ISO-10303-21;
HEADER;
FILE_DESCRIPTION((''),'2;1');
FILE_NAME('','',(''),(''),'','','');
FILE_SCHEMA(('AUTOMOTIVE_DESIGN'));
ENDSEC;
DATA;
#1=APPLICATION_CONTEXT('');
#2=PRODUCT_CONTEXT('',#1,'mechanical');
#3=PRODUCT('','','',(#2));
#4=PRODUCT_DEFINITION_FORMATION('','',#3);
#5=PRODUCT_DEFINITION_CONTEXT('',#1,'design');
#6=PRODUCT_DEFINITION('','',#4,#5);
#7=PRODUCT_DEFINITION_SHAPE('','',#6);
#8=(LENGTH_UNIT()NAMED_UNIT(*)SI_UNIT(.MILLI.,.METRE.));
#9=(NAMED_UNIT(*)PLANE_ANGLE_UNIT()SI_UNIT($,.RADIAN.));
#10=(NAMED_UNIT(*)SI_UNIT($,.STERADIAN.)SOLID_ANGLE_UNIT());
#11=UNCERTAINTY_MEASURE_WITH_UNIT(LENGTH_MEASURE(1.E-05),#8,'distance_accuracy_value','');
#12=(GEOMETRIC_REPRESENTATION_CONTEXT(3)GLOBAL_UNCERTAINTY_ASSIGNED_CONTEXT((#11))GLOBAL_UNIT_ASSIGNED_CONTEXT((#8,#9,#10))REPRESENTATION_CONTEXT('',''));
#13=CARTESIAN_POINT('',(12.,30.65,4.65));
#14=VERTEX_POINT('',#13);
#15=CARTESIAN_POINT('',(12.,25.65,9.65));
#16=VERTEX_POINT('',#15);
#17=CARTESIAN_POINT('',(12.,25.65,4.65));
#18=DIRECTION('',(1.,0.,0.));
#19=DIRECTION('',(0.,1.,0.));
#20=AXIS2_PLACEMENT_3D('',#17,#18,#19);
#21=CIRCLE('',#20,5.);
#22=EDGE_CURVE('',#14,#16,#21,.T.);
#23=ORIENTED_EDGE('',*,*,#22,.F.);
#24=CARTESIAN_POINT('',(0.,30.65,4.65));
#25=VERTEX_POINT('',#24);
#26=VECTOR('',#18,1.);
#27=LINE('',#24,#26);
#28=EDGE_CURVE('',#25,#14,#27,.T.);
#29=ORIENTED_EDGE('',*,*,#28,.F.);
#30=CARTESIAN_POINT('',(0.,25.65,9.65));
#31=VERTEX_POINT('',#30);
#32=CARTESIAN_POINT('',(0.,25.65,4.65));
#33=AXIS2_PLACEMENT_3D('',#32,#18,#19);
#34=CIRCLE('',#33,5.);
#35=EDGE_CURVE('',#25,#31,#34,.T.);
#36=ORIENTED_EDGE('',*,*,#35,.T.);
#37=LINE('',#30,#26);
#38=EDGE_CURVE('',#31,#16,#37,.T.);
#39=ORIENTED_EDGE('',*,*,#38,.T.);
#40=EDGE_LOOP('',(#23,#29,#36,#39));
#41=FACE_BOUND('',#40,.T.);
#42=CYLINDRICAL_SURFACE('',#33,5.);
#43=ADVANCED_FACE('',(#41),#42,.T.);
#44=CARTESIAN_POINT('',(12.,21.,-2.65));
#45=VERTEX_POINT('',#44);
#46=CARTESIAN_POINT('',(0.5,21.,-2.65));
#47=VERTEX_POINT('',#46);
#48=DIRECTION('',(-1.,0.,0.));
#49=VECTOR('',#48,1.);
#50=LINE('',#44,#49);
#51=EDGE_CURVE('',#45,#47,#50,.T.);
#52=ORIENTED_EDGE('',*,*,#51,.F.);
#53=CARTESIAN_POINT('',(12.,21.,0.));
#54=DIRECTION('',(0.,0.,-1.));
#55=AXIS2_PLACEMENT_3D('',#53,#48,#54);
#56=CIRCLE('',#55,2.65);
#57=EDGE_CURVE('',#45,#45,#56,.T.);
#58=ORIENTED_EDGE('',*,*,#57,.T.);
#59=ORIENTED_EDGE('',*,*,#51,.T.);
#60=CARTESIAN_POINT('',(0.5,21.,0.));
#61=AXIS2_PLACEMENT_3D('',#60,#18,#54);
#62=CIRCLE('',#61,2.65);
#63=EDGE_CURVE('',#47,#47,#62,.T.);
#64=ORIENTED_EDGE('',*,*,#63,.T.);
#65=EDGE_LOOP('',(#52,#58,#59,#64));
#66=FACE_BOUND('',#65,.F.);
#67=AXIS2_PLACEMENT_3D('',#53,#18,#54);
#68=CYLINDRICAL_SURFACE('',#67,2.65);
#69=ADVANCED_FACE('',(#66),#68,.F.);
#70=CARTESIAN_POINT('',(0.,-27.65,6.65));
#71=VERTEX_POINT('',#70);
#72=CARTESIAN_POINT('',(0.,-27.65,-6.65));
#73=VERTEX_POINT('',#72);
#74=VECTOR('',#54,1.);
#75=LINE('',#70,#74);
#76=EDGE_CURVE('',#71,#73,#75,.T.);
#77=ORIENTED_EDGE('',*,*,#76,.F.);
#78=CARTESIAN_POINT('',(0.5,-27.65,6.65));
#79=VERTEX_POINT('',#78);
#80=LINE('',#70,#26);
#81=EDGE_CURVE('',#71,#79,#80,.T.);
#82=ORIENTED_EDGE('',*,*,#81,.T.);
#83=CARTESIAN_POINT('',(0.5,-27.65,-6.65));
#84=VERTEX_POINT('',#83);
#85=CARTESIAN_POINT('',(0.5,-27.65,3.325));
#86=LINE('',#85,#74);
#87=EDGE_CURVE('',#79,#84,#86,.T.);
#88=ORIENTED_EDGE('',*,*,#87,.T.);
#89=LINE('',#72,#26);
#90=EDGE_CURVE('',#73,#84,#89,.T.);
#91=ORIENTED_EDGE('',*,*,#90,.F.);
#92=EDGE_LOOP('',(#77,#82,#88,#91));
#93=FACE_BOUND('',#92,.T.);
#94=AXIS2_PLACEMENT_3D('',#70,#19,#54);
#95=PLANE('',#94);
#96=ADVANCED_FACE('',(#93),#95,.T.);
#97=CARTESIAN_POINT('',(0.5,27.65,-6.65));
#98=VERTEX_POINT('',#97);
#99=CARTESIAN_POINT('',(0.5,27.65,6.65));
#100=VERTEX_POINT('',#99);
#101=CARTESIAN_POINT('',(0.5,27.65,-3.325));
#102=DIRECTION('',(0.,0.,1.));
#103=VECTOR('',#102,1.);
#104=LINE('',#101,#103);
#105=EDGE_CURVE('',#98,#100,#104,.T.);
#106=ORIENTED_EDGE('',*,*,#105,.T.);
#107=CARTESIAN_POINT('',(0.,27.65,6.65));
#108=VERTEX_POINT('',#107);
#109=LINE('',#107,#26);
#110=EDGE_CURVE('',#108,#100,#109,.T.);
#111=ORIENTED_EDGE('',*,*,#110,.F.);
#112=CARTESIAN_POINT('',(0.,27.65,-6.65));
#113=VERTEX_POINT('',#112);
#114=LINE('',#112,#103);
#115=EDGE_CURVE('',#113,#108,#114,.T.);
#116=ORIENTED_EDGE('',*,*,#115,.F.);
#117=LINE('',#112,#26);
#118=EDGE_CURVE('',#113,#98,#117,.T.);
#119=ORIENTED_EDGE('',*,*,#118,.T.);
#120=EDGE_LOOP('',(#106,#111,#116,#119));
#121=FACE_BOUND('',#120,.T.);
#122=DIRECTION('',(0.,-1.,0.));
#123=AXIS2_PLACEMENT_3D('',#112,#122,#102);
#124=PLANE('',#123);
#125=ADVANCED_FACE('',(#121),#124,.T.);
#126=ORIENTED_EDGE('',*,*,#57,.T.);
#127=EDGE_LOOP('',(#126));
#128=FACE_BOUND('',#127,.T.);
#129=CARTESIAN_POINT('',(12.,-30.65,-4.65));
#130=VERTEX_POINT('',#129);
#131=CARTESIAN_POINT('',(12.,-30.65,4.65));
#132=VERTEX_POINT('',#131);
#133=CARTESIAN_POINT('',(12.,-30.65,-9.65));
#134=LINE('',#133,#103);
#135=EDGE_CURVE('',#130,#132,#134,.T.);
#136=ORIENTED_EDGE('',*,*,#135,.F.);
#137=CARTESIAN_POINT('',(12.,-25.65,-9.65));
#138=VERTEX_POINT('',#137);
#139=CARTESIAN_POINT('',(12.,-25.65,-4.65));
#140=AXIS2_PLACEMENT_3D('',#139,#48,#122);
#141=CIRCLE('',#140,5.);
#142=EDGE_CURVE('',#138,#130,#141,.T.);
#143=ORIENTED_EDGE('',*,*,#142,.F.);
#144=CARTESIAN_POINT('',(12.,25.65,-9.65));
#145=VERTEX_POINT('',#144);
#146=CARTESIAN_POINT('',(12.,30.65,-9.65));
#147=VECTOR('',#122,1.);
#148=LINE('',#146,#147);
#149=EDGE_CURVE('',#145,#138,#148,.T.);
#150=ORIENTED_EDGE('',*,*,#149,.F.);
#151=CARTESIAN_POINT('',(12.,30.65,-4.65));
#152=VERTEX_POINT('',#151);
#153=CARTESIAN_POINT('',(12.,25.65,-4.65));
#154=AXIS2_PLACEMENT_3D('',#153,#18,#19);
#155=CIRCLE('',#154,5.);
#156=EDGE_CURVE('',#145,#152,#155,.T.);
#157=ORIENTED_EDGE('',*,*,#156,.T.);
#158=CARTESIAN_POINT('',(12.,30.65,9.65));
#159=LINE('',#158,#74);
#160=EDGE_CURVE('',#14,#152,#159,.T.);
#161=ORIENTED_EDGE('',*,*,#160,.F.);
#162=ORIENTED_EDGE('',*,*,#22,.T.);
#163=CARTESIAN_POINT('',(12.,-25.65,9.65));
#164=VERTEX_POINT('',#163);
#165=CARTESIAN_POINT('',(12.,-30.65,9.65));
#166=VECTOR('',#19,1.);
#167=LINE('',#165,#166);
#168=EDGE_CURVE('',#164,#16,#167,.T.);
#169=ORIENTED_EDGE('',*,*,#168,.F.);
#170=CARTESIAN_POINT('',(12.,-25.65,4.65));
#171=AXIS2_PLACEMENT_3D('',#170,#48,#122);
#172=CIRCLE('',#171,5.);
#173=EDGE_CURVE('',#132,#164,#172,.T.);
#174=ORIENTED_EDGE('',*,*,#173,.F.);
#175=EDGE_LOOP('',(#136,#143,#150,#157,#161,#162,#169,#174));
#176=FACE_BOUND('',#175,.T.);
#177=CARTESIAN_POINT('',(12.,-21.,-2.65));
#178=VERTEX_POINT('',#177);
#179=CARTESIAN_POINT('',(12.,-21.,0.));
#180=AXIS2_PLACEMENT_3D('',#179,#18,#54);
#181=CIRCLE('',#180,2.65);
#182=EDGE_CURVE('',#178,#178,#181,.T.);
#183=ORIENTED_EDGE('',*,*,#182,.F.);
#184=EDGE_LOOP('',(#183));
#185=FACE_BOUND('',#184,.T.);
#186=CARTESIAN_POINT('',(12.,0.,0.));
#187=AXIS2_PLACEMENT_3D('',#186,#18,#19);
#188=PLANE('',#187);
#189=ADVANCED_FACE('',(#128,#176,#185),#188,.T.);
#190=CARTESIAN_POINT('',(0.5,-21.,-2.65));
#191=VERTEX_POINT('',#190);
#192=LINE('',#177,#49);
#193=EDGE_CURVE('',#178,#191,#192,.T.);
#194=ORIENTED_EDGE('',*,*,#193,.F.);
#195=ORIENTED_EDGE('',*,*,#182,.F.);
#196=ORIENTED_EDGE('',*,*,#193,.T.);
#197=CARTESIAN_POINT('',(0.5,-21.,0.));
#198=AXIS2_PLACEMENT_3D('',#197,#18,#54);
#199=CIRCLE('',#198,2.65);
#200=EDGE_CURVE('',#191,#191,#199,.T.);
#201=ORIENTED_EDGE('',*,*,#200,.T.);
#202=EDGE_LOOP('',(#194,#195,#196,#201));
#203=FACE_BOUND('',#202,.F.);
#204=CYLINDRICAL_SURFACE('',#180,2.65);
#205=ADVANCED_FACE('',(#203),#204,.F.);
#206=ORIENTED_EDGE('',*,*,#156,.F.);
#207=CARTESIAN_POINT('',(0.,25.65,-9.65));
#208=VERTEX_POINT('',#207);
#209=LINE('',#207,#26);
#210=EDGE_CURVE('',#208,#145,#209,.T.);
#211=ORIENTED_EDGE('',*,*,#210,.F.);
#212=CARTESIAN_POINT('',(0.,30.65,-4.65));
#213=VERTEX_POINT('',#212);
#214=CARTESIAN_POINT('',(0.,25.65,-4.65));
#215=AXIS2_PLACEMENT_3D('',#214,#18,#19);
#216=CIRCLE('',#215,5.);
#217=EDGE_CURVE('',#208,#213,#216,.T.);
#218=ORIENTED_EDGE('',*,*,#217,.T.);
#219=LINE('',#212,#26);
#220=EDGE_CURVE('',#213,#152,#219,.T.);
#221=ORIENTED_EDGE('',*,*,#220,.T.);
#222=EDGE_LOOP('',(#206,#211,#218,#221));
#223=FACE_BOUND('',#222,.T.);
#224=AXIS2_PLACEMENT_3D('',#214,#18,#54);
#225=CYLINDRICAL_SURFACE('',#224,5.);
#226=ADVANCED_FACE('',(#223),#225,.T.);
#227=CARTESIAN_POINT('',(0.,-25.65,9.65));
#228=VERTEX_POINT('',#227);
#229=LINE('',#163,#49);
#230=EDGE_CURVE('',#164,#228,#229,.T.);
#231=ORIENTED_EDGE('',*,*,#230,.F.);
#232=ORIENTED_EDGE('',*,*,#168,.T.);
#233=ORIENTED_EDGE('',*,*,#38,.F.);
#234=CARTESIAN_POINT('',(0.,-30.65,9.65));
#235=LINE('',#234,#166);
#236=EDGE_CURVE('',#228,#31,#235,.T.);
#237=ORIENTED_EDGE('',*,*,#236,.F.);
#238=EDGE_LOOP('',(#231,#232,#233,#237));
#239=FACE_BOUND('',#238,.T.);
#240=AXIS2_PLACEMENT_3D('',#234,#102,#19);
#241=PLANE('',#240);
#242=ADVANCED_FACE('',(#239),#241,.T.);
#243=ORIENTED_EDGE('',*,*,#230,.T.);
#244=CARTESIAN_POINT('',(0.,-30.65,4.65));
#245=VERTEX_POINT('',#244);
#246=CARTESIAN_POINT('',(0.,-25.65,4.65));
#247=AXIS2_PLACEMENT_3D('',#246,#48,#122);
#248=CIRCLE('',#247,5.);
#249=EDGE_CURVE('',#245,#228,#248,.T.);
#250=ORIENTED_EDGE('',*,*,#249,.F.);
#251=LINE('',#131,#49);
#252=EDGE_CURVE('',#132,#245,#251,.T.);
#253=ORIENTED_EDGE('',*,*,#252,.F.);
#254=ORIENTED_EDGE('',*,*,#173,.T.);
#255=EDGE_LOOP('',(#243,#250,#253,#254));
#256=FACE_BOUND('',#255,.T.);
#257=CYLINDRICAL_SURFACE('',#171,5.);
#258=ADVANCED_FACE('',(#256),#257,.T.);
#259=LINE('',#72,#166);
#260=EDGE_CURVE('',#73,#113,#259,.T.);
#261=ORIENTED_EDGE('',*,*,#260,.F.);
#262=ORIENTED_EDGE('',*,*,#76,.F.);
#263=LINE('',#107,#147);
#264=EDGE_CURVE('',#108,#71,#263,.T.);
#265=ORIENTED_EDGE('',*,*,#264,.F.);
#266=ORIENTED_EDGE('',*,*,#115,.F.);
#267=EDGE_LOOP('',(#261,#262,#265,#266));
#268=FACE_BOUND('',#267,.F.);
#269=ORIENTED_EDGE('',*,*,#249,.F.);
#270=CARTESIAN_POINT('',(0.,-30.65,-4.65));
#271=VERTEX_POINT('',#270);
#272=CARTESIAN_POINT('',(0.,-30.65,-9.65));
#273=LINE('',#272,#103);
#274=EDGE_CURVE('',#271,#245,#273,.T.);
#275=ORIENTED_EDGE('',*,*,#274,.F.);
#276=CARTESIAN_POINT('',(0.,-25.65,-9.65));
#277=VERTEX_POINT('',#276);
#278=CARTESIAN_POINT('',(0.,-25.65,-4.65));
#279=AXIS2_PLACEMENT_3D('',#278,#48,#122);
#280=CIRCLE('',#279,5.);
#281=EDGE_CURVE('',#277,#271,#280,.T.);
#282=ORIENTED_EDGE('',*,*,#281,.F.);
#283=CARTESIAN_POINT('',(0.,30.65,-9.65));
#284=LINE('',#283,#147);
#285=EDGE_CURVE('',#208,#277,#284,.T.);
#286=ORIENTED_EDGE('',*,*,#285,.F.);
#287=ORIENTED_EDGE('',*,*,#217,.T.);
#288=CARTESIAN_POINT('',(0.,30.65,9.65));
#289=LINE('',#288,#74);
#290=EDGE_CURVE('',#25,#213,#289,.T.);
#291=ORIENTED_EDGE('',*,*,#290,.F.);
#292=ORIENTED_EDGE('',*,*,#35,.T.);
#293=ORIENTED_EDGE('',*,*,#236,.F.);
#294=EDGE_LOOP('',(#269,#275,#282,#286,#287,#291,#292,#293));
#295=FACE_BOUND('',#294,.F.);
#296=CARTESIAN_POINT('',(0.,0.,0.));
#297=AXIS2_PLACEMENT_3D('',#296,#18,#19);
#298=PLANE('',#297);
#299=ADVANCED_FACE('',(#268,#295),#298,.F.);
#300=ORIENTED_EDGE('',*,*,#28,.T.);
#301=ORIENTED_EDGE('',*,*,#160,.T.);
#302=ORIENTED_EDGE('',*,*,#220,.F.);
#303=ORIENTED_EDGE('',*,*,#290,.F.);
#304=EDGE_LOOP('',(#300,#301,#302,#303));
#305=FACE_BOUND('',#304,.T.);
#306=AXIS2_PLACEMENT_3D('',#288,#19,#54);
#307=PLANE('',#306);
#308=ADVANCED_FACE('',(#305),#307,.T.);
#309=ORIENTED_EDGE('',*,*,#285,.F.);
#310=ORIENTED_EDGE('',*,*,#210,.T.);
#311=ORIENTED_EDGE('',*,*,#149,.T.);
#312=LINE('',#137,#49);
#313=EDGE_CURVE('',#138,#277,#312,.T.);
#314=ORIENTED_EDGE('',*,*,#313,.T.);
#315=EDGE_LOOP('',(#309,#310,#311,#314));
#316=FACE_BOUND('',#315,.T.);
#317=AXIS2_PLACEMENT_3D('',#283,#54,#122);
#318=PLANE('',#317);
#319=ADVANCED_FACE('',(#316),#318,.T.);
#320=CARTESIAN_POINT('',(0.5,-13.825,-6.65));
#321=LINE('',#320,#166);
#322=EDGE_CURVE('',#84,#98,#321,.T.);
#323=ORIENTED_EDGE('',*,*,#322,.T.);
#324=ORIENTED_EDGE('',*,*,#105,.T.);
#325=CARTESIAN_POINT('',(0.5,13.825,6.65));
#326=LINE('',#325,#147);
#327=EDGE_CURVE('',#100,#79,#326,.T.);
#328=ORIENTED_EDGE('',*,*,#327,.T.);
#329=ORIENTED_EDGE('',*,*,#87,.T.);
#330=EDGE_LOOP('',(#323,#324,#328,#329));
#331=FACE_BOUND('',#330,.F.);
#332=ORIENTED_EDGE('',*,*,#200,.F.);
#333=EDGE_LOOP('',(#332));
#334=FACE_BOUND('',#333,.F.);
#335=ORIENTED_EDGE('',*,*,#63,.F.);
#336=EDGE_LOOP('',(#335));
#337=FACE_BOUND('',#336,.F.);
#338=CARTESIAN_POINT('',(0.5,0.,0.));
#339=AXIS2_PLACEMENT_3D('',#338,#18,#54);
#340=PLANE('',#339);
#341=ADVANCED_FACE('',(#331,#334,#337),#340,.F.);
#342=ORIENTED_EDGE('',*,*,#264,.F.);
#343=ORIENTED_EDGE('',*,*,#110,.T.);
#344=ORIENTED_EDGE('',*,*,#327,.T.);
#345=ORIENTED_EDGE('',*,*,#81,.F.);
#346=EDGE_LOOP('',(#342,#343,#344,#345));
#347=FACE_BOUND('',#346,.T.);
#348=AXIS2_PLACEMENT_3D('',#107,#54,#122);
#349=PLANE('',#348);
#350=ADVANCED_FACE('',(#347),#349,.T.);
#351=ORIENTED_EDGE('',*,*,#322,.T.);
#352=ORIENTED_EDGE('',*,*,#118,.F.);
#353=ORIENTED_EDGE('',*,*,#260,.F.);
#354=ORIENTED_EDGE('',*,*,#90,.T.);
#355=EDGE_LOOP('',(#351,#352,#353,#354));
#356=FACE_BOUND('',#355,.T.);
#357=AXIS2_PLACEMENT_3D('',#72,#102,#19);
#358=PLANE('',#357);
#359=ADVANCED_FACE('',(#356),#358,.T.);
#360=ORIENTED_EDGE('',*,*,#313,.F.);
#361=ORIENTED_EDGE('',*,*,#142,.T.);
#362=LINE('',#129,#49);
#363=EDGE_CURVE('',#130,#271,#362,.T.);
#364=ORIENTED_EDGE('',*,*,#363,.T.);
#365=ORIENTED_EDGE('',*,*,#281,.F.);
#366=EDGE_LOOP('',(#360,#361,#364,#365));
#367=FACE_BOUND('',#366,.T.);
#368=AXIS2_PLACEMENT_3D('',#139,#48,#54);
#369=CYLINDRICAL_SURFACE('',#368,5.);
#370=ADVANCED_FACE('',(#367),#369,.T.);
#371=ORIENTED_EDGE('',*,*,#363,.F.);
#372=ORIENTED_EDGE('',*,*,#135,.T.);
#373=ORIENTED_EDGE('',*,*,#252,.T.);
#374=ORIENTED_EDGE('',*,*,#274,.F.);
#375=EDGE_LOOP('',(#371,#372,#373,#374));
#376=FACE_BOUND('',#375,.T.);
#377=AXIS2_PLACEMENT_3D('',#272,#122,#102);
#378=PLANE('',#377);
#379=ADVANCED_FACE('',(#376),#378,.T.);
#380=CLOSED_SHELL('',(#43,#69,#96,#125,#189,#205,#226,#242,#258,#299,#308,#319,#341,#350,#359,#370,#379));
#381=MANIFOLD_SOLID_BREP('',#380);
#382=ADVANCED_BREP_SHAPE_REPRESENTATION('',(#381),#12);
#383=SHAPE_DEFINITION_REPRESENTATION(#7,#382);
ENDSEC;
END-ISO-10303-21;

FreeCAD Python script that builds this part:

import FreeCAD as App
import Part
import Sketcher
Q = App.Units.Quantity


def edges_at(feature, points):
    """Names of the edges that pass closest to the given points."""
    edges = feature.Shape.Edges
    near = lambda p: min(range(len(edges)), key=lambda i: edges[i].distToShape(Part.Vertex(*p))[0])
    return sorted({f"Edge{near(p) + 1}" for p in points})


def add_polygon(sketch, points):
    """Adds a closed chain of lines whose ends are joined by coincident constraints."""
    first, n = sketch.GeometryCount, len(points)
    for a, b in zip(points, points[1:] + points[:1]):
        sketch.addGeometry(Part.LineSegment(App.Vector(*a, 0), App.Vector(*b, 0)), False)
    for i in range(n):
        sketch.addConstraint(Sketcher.Constraint("Coincident", first + i, 2, first + (i + 1) % n, 1))

doc = App.newDocument("Part")
body = doc.addObject("PartDesign::Body", "Body")

# Sketch on YZ plane
sketch1 = body.newObject("Sketcher::SketchObject", "Sketch")
sketch1.AttachmentSupport = (doc.getObject("YZ_Plane"), [""])
sketch1.MapMode = "FlatFace"
add_polygon(sketch1, [(-31, -10), (31, -10), (31, 10), (-31, 10)])  # lines 0-3
add_polygon(sketch1, [(-28, 7), (28, 7), (28, -7), (-28, -7)])  # lines 4-7
sketch1.addConstraint([
    Sketcher.Constraint("Horizontal", 0),
    Sketcher.Constraint("Vertical", 1),
    Sketcher.Constraint("Horizontal", 2),
    Sketcher.Constraint("Vertical", 3),
    Sketcher.Constraint("Horizontal", 4),
    Sketcher.Constraint("Vertical", 5),
    Sketcher.Constraint("Horizontal", 6),
    Sketcher.Constraint("Vertical", 7),
    Sketcher.Constraint("Symmetric", 0, 2, 2, 2, -1, 1),
    Sketcher.Constraint("Symmetric", 4, 2, 6, 2, -1, 1),
    Sketcher.Constraint("DistanceX", 4, 1, 4, 2, Q("55.3 mm")),
    Sketcher.Constraint("DistanceY", 5, 2, 5, 1, Q("13.3 mm")),
    Sketcher.Constraint("DistanceX", 4, 2, 1, 2, Q("3 mm")),
    Sketcher.Constraint("DistanceY", 4, 2, 1, 2, Q("3 mm")),
])
pad1 = body.newObject("PartDesign::Pad", "Pad")
pad1.Profile = sketch1
pad1.Length = 12

# Sketch on YZ plane
sketch2 = body.newObject("Sketcher::SketchObject", "Sketch001")
sketch2.AttachmentSupport = (doc.getObject("YZ_Plane"), [""])
sketch2.MapMode = "FlatFace"
sketch2.AttachmentOffset = App.Placement(App.Vector(0, 0, 12), App.Rotation())
add_polygon(sketch2, [(31, -10), (31, 10), (-31, 10), (-31, -10)])  # lines 0-3
sketch2.addConstraint([
    Sketcher.Constraint("Vertical", 0),
    Sketcher.Constraint("Horizontal", 1),
    Sketcher.Constraint("Vertical", 2),
    Sketcher.Constraint("Horizontal", 3),
    Sketcher.Constraint("Symmetric", 0, 2, 2, 2, -1, 1),
    Sketcher.Constraint("DistanceX", 1, 2, 1, 1, Q("61.3 mm")),
    Sketcher.Constraint("DistanceY", 0, 1, 0, 2, Q("19.3 mm")),
])
pad2 = body.newObject("PartDesign::Pad", "Pad001")
pad2.Profile = sketch2
pad2.Length = 11.5
pad2.Reversed = True

# Sketch on YZ plane
sketch3 = body.newObject("Sketcher::SketchObject", "Sketch002")
sketch3.AttachmentSupport = (doc.getObject("YZ_Plane"), [""])
sketch3.MapMode = "FlatFace"
sketch3.AttachmentOffset = App.Placement(App.Vector(0, 0, 12), App.Rotation())
sketch3.addGeometry([
    Part.Circle(App.Vector(21, 0, 0), App.Vector(0, 0, 1), 2.6),
    Part.Circle(App.Vector(-21, 0, 0), App.Vector(0, 0, 1), 2.6),
], False)
sketch3.addConstraint([
    Sketcher.Constraint("Equal", 0, 1),
    Sketcher.Constraint("Symmetric", 0, 3, 1, 3, -1, 1),
    Sketcher.Constraint("PointOnObject", 0, 3, -1),
    Sketcher.Constraint("Diameter", 0, Q("5.3 mm")),
    Sketcher.Constraint("DistanceX", -1, 1, 0, 3, Q("21 mm")),
])
pocket1 = body.newObject("PartDesign::Pocket", "Pocket")
pocket1.Profile = sketch3
pocket1.Length = 13
doc.recompute()

fillet = body.newObject("PartDesign::Fillet", "Fillet")
fillet.Base = (pocket1, edges_at(pocket1, [
    (6, 30.65, 9.65),
    (6, 30.65, -9.65),
    (6, -30.65, -9.65),
    (6, -30.65, 9.65),
]))
fillet.Radius = 5

doc.recompute()
